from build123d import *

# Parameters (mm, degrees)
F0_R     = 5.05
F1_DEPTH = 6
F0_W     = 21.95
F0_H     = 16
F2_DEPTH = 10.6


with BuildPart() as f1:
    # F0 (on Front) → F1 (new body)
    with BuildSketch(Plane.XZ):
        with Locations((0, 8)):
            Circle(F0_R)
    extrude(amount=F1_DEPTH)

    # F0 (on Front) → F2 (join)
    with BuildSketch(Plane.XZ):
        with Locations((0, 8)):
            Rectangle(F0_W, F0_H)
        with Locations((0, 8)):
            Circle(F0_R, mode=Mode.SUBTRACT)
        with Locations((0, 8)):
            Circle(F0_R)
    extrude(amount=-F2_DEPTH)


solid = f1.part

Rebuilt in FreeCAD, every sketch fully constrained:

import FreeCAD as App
import Part
import Sketcher

doc = App.newDocument("Part")
body = doc.addObject("PartDesign::Body", "Body")

# Sketch on XZ plane
sketch1 = body.newObject("Sketcher::SketchObject", "Sketch")
sketch1.AttachmentSupport = (doc.getObject("XZ_Plane"), [""])
sketch1.MapMode = "FlatFace"
sketch1.addGeometry(Part.Circle(App.Vector(0, 8, 0), App.Vector(0, 0, 1), 5), False)
sketch1.addConstraint(Sketcher.Constraint("PointOnObject", 0, 3, -2))
sketch1.addConstraint(Sketcher.Constraint("Diameter", 0, 10.1))
sketch1.addConstraint(Sketcher.Constraint("DistanceY", -1, 1, 0, 3, 8.0))
pad1 = body.newObject("PartDesign::Pad", "Pad")
pad1.Profile = sketch1
pad1.Length = 6

# Sketch on XZ plane
sketch2 = body.newObject("Sketcher::SketchObject", "Sketch001")
sketch2.AttachmentSupport = (doc.getObject("XZ_Plane"), [""])
sketch2.MapMode = "FlatFace"
sketch2.addGeometry(Part.LineSegment(App.Vector(-11, 16, 0), App.Vector(-11, 0, 0)), False)
sketch2.addGeometry(Part.LineSegment(App.Vector(-11, 0, 0), App.Vector(11, 0, 0)), False)
sketch2.addGeometry(Part.LineSegment(App.Vector(11, 0, 0), App.Vector(11, 16, 0)), False)
sketch2.addGeometry(Part.LineSegment(App.Vector(11, 16, 0), App.Vector(-11, 16, 0)), False)
sketch2.addConstraint(Sketcher.Constraint("Coincident", 0, 2, 1, 1))
sketch2.addConstraint(Sketcher.Constraint("Coincident", 1, 2, 2, 1))
sketch2.addConstraint(Sketcher.Constraint("Coincident", 2, 2, 3, 1))
sketch2.addConstraint(Sketcher.Constraint("Coincident", 3, 2, 0, 1))
sketch2.addConstraint(Sketcher.Constraint("Vertical", 0))
sketch2.addConstraint(Sketcher.Constraint("Horizontal", 1))
sketch2.addConstraint(Sketcher.Constraint("Vertical", 2))
sketch2.addConstraint(Sketcher.Constraint("Horizontal", 3))
sketch2.addConstraint(Sketcher.Constraint("Symmetric", 0, 2, 1, 2, -1, 1))
sketch2.addConstraint(Sketcher.Constraint("DistanceY", 0, 2, 0, 1, 16.0))
sketch2.addConstraint(Sketcher.Constraint("DistanceX", 1, 1, 1, 2, 21.95))
pad2 = body.newObject("PartDesign::Pad", "Pad001")
pad2.Profile = sketch2
pad2.Length = 10.6
pad2.Reversed = True

doc.recompute()
